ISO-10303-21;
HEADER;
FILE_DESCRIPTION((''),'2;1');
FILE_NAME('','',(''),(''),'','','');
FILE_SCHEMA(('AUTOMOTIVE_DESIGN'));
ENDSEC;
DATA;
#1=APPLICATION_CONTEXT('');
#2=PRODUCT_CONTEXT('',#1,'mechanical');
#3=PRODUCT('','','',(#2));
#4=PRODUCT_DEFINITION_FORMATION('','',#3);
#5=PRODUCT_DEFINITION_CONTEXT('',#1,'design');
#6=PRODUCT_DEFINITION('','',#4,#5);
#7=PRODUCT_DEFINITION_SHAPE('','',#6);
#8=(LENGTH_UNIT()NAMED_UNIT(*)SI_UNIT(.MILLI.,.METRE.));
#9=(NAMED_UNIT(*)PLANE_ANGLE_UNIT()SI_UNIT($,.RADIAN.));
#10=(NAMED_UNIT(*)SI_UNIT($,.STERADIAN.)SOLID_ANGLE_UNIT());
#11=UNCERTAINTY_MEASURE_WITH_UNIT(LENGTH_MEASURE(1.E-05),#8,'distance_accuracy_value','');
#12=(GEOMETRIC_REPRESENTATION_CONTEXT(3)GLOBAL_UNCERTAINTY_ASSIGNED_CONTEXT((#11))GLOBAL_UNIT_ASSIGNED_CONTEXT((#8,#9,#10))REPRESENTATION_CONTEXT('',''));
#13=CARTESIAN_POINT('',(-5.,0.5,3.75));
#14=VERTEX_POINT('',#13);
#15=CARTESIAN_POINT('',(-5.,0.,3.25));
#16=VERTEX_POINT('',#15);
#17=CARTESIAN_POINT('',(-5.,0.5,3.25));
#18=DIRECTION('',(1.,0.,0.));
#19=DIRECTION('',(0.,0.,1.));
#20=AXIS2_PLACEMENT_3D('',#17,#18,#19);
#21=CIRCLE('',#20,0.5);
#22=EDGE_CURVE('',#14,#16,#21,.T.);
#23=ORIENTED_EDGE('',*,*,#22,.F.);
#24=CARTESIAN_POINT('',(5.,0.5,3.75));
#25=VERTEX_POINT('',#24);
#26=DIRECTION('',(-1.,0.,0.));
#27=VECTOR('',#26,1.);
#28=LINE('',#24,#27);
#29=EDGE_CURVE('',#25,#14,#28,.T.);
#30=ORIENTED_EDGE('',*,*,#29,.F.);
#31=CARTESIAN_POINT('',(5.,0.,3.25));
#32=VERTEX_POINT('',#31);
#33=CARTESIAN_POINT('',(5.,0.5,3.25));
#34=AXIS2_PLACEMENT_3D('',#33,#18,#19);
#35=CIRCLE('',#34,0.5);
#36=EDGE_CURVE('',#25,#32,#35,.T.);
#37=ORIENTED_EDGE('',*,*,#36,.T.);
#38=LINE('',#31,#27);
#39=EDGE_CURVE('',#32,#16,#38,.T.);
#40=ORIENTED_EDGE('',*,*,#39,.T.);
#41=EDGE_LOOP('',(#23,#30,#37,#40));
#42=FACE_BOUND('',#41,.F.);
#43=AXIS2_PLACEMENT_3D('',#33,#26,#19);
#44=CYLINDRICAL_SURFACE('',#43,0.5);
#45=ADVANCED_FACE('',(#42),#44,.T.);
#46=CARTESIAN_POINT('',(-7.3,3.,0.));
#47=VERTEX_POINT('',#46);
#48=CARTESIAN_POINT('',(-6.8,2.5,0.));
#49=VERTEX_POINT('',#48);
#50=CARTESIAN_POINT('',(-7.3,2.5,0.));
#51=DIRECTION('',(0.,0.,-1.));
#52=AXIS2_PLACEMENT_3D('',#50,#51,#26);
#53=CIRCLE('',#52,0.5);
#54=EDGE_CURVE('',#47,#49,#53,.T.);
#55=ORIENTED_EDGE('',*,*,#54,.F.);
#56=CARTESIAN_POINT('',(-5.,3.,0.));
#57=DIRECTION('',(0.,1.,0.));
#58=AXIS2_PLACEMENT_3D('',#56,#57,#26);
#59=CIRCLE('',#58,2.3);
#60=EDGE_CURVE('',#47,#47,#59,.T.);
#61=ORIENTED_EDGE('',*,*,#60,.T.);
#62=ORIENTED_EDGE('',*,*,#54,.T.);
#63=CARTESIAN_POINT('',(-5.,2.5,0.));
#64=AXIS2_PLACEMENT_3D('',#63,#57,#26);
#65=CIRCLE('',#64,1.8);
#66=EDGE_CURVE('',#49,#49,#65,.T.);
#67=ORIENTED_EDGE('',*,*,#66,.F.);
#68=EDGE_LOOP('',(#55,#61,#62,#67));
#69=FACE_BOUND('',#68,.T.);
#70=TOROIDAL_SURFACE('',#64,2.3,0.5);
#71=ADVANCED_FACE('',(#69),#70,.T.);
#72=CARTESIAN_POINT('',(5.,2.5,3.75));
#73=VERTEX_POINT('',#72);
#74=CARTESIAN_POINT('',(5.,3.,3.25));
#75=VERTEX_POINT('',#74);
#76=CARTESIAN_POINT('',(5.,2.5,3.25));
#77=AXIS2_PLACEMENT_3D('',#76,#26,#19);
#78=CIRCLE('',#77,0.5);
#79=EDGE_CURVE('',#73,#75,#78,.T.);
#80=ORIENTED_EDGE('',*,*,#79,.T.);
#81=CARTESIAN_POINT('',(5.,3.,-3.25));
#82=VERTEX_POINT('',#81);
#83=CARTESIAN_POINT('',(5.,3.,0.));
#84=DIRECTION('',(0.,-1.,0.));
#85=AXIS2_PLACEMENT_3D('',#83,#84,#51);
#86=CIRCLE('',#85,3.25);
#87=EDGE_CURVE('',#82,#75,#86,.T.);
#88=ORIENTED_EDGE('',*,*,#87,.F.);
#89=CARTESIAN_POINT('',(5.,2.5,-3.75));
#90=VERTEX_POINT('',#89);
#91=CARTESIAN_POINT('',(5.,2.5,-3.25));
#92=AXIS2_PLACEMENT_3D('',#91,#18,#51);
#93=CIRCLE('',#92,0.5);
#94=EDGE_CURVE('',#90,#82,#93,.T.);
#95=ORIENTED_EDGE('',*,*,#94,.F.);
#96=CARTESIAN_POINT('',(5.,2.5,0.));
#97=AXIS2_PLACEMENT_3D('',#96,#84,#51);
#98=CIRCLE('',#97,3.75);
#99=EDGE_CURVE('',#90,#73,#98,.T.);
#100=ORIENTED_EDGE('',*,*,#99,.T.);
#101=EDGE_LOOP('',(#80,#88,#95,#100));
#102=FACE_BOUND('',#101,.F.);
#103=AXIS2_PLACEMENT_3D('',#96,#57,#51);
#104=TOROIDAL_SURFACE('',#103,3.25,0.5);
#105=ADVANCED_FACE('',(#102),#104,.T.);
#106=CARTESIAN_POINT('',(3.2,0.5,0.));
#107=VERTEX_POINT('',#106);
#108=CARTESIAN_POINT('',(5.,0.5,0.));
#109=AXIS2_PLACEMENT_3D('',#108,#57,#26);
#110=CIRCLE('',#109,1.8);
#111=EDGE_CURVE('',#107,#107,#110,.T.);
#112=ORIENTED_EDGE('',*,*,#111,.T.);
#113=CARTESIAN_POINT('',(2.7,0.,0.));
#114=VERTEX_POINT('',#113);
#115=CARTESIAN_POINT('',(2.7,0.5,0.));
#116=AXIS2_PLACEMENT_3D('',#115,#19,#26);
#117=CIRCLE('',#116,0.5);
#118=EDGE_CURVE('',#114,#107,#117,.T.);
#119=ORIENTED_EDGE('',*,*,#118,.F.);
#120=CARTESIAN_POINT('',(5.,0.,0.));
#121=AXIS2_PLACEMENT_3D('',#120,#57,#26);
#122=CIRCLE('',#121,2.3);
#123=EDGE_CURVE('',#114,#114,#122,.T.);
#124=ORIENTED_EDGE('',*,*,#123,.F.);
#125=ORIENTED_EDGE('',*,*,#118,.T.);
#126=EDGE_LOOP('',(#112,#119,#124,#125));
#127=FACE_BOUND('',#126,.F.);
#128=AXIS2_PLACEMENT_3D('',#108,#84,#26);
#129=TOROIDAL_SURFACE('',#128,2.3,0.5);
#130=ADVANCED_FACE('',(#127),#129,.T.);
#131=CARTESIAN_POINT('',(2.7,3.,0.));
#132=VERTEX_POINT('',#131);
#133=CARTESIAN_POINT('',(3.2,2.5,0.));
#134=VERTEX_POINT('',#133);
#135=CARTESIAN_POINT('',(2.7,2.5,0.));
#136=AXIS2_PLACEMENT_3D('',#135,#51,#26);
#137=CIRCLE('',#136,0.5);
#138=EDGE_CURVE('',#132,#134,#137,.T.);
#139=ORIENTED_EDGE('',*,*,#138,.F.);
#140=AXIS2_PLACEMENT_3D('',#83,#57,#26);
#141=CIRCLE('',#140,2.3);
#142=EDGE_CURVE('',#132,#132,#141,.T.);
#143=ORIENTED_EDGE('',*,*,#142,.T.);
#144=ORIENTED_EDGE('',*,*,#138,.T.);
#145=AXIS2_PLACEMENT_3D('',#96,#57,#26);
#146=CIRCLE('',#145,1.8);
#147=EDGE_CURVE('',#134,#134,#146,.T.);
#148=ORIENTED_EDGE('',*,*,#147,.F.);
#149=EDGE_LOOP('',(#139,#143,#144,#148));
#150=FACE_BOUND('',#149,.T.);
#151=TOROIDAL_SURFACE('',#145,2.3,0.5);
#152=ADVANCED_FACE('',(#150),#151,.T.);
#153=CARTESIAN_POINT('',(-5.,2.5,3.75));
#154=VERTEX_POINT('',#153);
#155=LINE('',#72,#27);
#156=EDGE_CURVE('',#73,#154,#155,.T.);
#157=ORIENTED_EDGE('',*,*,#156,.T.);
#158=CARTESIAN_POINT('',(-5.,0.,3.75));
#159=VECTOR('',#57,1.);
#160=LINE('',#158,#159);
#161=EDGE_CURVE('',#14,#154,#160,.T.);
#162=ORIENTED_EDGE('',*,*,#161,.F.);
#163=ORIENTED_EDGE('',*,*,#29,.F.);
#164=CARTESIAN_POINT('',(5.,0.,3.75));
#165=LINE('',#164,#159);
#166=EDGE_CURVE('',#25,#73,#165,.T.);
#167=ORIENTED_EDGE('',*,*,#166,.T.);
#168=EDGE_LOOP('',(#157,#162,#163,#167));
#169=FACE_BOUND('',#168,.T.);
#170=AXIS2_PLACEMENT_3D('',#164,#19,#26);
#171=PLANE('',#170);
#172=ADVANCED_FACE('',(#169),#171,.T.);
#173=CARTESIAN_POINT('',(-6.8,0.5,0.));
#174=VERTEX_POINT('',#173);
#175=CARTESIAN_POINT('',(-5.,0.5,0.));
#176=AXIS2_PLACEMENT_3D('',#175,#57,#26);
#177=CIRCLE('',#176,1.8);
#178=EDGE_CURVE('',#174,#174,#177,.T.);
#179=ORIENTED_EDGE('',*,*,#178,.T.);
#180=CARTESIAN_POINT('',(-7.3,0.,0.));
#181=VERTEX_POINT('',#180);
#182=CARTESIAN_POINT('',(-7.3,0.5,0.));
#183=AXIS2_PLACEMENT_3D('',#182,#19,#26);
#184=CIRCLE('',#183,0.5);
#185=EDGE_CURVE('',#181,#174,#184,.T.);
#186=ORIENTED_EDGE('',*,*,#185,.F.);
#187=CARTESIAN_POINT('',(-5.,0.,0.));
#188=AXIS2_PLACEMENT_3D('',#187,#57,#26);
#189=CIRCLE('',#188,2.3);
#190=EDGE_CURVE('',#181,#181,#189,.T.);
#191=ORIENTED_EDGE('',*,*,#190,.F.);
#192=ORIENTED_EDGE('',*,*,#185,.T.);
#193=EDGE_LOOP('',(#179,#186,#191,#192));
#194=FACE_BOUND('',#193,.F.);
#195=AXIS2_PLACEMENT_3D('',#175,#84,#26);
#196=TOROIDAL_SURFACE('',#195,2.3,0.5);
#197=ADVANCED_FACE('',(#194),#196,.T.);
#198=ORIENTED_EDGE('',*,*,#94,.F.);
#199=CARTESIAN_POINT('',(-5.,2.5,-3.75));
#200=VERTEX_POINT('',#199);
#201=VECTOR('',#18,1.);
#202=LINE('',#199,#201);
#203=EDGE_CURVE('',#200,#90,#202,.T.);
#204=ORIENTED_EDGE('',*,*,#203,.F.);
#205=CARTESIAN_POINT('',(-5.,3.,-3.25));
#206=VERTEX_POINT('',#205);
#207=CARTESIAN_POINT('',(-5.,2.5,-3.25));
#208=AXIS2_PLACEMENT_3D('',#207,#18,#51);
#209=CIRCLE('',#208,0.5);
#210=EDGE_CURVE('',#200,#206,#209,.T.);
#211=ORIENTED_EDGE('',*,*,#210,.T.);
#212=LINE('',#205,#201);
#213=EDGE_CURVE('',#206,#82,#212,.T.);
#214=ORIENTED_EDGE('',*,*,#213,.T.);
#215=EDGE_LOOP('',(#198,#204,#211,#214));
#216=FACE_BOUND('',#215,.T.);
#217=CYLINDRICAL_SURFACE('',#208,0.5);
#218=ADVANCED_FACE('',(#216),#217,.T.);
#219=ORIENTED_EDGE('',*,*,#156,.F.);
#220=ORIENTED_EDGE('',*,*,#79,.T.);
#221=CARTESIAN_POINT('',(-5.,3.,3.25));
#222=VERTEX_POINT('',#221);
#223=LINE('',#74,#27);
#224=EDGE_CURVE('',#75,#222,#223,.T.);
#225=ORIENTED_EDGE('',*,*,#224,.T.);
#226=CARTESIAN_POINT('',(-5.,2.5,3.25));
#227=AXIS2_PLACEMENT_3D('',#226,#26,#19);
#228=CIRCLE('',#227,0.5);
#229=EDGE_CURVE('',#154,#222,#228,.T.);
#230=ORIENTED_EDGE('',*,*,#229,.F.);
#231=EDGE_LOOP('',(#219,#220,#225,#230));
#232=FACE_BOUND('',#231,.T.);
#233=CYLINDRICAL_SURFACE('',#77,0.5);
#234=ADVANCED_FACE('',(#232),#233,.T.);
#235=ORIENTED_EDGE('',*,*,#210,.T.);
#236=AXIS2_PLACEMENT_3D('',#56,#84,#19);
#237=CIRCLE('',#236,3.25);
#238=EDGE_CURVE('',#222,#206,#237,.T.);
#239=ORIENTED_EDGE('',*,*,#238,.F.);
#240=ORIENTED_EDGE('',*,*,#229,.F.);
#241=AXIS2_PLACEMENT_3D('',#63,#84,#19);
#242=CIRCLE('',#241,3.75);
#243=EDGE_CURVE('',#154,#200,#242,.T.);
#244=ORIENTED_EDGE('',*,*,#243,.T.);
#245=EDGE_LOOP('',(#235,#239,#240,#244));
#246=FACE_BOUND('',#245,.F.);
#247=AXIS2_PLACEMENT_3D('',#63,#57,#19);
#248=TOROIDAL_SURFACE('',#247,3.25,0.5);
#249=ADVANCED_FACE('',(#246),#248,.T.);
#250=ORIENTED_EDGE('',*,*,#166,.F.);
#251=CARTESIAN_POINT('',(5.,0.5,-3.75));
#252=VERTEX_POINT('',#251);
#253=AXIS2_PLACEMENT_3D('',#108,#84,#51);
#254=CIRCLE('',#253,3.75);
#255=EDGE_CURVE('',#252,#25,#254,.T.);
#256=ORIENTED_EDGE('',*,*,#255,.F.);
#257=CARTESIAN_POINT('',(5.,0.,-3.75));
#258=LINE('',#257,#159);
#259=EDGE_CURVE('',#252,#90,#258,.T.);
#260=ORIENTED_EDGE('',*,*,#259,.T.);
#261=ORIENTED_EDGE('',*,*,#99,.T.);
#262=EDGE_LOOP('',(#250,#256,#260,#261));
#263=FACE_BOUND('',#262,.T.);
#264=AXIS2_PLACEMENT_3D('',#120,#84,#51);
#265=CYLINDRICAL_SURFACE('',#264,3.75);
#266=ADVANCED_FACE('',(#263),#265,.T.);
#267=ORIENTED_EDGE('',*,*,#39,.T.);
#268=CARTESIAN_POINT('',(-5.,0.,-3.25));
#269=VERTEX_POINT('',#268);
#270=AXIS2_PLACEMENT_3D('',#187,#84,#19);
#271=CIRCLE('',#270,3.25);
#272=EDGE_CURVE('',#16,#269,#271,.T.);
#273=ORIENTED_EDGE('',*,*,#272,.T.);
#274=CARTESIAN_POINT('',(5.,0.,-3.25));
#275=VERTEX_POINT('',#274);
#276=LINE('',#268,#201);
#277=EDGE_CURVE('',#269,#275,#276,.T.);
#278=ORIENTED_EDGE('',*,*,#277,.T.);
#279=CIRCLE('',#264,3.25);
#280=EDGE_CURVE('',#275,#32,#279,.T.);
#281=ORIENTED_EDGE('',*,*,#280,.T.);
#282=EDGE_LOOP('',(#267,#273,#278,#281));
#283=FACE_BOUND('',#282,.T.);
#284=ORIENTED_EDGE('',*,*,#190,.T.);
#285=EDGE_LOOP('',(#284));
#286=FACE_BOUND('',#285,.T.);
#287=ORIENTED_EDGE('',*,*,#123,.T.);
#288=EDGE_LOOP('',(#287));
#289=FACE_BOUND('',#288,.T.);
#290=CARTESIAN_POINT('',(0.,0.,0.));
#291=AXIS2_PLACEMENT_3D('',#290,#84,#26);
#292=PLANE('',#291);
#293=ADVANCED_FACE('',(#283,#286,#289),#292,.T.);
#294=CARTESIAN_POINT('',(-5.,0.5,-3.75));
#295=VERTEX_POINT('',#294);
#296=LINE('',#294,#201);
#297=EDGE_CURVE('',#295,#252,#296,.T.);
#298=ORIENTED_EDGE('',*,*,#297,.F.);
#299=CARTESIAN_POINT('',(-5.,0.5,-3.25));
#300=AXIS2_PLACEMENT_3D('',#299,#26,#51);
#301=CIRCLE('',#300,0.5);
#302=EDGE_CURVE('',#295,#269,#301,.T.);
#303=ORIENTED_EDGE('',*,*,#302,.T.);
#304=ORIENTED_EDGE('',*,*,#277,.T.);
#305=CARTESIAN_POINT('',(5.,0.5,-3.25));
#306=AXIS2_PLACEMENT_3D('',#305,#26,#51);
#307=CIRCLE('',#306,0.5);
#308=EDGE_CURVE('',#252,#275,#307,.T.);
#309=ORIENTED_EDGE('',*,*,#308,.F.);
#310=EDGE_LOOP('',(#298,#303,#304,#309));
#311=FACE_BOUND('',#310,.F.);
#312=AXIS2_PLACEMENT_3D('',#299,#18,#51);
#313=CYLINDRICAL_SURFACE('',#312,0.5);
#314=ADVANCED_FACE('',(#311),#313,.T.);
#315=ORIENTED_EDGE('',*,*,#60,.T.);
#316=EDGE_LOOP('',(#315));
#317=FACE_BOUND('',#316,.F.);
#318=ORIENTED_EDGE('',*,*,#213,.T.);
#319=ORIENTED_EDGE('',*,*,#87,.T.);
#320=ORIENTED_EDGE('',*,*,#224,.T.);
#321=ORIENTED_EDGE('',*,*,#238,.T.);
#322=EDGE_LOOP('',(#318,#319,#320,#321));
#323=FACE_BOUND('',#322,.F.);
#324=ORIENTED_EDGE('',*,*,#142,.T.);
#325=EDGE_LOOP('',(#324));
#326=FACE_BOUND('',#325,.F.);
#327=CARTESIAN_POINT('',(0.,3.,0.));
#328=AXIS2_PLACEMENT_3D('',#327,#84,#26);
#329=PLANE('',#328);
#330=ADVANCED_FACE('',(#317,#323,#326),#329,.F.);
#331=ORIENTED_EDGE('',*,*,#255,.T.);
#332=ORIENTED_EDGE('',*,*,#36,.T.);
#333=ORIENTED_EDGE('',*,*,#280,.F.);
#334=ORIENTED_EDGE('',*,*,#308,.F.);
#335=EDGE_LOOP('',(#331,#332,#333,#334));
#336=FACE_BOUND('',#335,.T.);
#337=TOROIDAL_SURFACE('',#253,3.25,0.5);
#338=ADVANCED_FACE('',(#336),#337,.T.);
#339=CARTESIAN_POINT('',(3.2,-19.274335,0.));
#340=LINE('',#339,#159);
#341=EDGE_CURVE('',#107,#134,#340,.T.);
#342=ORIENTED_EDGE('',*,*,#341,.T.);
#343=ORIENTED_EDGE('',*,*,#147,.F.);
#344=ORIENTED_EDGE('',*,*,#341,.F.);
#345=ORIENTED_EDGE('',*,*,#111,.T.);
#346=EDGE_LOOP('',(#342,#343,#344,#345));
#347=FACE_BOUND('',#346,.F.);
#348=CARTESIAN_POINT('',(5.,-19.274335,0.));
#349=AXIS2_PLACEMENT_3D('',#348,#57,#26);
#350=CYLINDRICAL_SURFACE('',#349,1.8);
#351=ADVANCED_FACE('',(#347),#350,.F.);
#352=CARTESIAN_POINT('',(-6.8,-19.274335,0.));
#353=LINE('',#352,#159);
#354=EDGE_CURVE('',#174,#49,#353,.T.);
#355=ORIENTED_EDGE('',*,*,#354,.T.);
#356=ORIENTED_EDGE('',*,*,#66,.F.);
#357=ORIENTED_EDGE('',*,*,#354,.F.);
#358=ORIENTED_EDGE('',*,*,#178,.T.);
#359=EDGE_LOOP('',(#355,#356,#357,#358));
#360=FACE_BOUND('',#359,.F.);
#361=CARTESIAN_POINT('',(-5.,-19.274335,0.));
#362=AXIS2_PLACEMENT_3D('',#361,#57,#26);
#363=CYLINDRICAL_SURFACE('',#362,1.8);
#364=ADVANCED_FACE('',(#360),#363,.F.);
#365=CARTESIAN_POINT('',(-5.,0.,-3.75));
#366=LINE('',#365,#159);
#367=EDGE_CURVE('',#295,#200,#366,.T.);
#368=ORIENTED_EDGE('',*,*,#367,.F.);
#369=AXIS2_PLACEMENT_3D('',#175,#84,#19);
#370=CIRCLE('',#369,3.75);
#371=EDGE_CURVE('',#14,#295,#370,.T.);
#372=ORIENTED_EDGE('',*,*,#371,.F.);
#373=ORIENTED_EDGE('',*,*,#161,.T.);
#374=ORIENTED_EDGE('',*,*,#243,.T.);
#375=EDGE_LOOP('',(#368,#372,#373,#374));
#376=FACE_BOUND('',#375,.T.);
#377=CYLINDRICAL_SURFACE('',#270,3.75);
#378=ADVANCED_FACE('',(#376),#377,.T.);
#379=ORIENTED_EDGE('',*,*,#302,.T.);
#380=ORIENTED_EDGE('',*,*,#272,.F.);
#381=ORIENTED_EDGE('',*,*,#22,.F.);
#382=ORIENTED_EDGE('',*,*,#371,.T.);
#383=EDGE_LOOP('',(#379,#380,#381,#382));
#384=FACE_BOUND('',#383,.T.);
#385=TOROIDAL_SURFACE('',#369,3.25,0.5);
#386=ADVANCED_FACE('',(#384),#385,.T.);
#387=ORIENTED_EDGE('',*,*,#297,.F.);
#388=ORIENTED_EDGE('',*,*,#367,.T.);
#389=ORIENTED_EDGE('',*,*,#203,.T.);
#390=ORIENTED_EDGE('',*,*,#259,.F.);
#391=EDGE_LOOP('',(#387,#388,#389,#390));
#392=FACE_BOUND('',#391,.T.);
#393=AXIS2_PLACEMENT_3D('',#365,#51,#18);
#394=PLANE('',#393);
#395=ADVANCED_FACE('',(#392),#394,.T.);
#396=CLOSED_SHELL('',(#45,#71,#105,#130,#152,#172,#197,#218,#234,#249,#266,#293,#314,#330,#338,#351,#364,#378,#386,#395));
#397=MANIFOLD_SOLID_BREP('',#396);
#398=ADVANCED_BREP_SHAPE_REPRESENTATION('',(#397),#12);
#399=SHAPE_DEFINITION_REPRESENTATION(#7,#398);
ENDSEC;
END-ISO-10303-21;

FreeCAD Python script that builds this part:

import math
import FreeCAD as App
import Part
import Sketcher
Q = App.Units.Quantity


def edges_at(feature, points):
    """Names of the edges that pass closest to the given points."""
    edges = feature.Shape.Edges
    near = lambda p: min(range(len(edges)), key=lambda i: edges[i].distToShape(Part.Vertex(*p))[0])
    return sorted({f"Edge{near(p) + 1}" for p in points})

doc = App.newDocument("Part")
body = doc.addObject("PartDesign::Body", "Body")

# Sketch on XZ plane
sketch1 = body.newObject("Sketcher::SketchObject", "Sketch")
sketch1.AttachmentSupport = (doc.getObject("XZ_Plane"), [""])
sketch1.MapMode = "FlatFace"
sketch1.addGeometry([
    Part.LineSegment(App.Vector(5, -3.75, 0), App.Vector(-5, -3.75, 0)),
    Part.ArcOfCircle(Part.Circle(App.Vector(-5, 0, 0), App.Vector(0, 0, 1), 3.75), math.radians(90), math.radians(270)),
    Part.LineSegment(App.Vector(-5, 3.75, 0), App.Vector(5, 3.75, 0)),
    Part.ArcOfCircle(Part.Circle(App.Vector(5, 0, 0), App.Vector(0, 0, 1), 3.75), math.radians(-90), math.radians(90)),
], False)
sketch1.addConstraint([
    Sketcher.Constraint("Tangent", 0, 2, 1, 2),
    Sketcher.Constraint("Tangent", 1, 1, 2, 1),
    Sketcher.Constraint("Tangent", 2, 2, 3, 2),
    Sketcher.Constraint("Tangent", 3, 1, 0, 1),
    Sketcher.Constraint("Horizontal", 0),
    Sketcher.Constraint("Horizontal", 2),
    Sketcher.Constraint("Symmetric", 1, 3, 3, 3, -1, 1),
    Sketcher.Constraint("DistanceX", 0, 2, 0, 1, Q("10 mm")),
    Sketcher.Constraint("Radius", 1, Q("3.75 mm")),
])
pad1 = body.newObject("PartDesign::Pad", "Pad")
pad1.Profile = sketch1
pad1.Length = 3
pad1.Reversed = True

# Sketch on XZ plane
sketch2 = body.newObject("Sketcher::SketchObject", "Sketch001")
sketch2.AttachmentSupport = (doc.getObject("XZ_Plane"), [""])
sketch2.MapMode = "FlatFace"
sketch2.addGeometry([
    Part.Circle(App.Vector(-5, 0, 0), App.Vector(0, 0, 1), 1.8),
    Part.Circle(App.Vector(5, 0, 0), App.Vector(0, 0, 1), 1.8),
], False)
sketch2.addConstraint([
    Sketcher.Constraint("Equal", 0, 1),
    Sketcher.Constraint("Symmetric", 0, 3, 1, 3, -1, 1),
    Sketcher.Constraint("PointOnObject", 0, 3, -1),
    Sketcher.Constraint("Diameter", 0, Q("3.6 mm")),
    Sketcher.Constraint("DistanceX", 0, 3, -1, 1, Q("5 mm")),
])
doc.recompute()
hole = body.newObject("PartDesign::Hole", "Hole")
hole.Profile = sketch2
hole.ThreadType = "None"
hole.Diameter = 3.6
hole.DepthType = "ThroughAll"
doc.recompute()

fillet = body.newObject("PartDesign::Fillet", "Fillet")
fillet.Base = (hole, edges_at(hole, [
    (8.75, 3, 0),
    (6.8, 0, 0),
    (6.8, 3, 0),
    (0, 3, -3.75),
    (-3.2, 0, 0),
    (-3.2, 3, 0),
    (-8.75, 3, 0),
    (0, 0, -3.75),
    (8.75, 0, 0),
    (0, 0, 3.75),
    (-8.75, 0, 0),
    (0, 3, 3.75),
]))
fillet.Radius = 0.5

doc.recompute()
